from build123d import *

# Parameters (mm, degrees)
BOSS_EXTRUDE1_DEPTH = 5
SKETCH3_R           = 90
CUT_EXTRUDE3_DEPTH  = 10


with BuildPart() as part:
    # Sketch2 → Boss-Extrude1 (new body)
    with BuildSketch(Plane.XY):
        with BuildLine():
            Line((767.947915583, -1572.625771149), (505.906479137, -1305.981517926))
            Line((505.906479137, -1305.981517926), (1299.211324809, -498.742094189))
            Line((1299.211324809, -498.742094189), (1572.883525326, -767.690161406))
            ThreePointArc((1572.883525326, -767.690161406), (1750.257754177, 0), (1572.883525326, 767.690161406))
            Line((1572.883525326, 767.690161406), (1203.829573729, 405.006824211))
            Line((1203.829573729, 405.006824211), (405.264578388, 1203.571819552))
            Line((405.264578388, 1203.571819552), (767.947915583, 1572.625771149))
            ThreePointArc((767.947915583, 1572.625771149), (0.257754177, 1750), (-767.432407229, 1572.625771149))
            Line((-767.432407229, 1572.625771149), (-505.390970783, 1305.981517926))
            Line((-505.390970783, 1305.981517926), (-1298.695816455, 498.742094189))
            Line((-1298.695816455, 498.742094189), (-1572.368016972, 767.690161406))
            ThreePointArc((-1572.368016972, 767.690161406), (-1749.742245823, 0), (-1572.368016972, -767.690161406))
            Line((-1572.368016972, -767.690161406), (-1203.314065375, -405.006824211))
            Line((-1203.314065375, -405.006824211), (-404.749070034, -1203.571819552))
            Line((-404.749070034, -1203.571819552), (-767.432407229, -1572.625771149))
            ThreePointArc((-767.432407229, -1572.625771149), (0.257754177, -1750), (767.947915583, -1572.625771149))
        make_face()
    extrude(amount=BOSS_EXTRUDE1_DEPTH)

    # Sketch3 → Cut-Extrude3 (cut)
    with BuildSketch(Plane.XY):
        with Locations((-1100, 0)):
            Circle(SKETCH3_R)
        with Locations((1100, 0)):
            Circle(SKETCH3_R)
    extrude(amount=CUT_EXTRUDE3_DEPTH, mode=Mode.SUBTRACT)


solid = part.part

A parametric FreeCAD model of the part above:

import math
import FreeCAD as App
import Part
import Sketcher

V = App.Vector
Q = App.Units.Quantity

doc = App.newDocument("Part")
body = doc.addObject("PartDesign::Body", "Body")

# Sketch on XY plane
sketch1 = doc.addObject("Sketcher::SketchObject", "Sketch")
body.addObject(sketch1)
sketch1.AttachmentSupport = (doc.XY_Plane, [""])
sketch1.MapMode = "FlatFace"
sketch1.addGeometry(Part.LineSegment(V(767.947916, -1572.625771, 0), V(505.906479, -1305.981518, 0)), False)
sketch1.addGeometry(Part.LineSegment(V(505.906479, -1305.981518, 0), V(1299.211325, -498.742094, 0)), False)
sketch1.addGeometry(Part.LineSegment(V(1299.211325, -498.742094, 0), V(1572.883525, -767.690161, 0)), False)
sketch1.addGeometry(Part.ArcOfCircle(Part.Circle(V(0.257754, 0, 0), V(0, 0, 1), 1750), math.radians(-26.019696), math.radians(26.019696)), False)
sketch1.addGeometry(Part.LineSegment(V(1572.883525, 767.690161, 0), V(1203.829574, 405.006824, 0)), False)
sketch1.addGeometry(Part.LineSegment(V(1203.829574, 405.006824, 0), V(405.264578, 1203.57182, 0)), False)
sketch1.addGeometry(Part.LineSegment(V(405.264578, 1203.57182, 0), V(767.947916, 1572.625771, 0)), False)
sketch1.addGeometry(Part.ArcOfCircle(Part.Circle(V(0.257754, 0, 0), V(0, 0, 1), 1750), math.radians(63.980304), math.radians(116.019696)), False)
sketch1.addGeometry(Part.LineSegment(V(-767.432407, 1572.625771, 0), V(-505.390971, 1305.981518, 0)), False)
sketch1.addGeometry(Part.LineSegment(V(-505.390971, 1305.981518, 0), V(-1298.695816, 498.742094, 0)), False)
sketch1.addGeometry(Part.LineSegment(V(-1298.695816, 498.742094, 0), V(-1572.368017, 767.690161, 0)), False)
sketch1.addGeometry(Part.ArcOfCircle(Part.Circle(V(0.257754, 0, 0), V(0, 0, 1), 1750), math.radians(153.980304), math.radians(206.019696)), False)
sketch1.addGeometry(Part.LineSegment(V(-1572.368017, -767.690161, 0), V(-1203.314065, -405.006824, 0)), False)
sketch1.addGeometry(Part.LineSegment(V(-1203.314065, -405.006824, 0), V(-404.74907, -1203.57182, 0)), False)
sketch1.addGeometry(Part.LineSegment(V(-404.74907, -1203.57182, 0), V(-767.432407, -1572.625771, 0)), False)
sketch1.addGeometry(Part.ArcOfCircle(Part.Circle(V(0.257754, 0, 0), V(0, 0, 1), 1750), math.radians(-116.019696), math.radians(-63.980304)), False)
sketch1.addConstraint(Sketcher.Constraint("Coincident", 0, 2, 1, 1))
sketch1.addConstraint(Sketcher.Constraint("Coincident", 1, 2, 2, 1))
sketch1.addConstraint(Sketcher.Constraint("Coincident", 2, 2, 3, 1))
sketch1.addConstraint(Sketcher.Constraint("Coincident", 3, 2, 4, 1))
sketch1.addConstraint(Sketcher.Constraint("Coincident", 4, 2, 5, 1))
sketch1.addConstraint(Sketcher.Constraint("Coincident", 5, 2, 6, 1))
sketch1.addConstraint(Sketcher.Constraint("Coincident", 6, 2, 7, 1))
sketch1.addConstraint(Sketcher.Constraint("Coincident", 7, 2, 8, 1))
sketch1.addConstraint(Sketcher.Constraint("Coincident", 8, 2, 9, 1))
sketch1.addConstraint(Sketcher.Constraint("Coincident", 9, 2, 10, 1))
sketch1.addConstraint(Sketcher.Constraint("Coincident", 10, 2, 11, 1))
sketch1.addConstraint(Sketcher.Constraint("Coincident", 11, 2, 12, 1))
sketch1.addConstraint(Sketcher.Constraint("Coincident", 12, 2, 13, 1))
sketch1.addConstraint(Sketcher.Constraint("Coincident", 13, 2, 14, 1))
sketch1.addConstraint(Sketcher.Constraint("Coincident", 14, 2, 15, 1))
sketch1.addConstraint(Sketcher.Constraint("Coincident", 15, 2, 0, 1))
sketch1.addConstraint(Sketcher.Constraint("Coincident", 7, 3, 3, 3))
sketch1.addConstraint(Sketcher.Constraint("Coincident", 11, 3, 3, 3))
sketch1.addConstraint(Sketcher.Constraint("Coincident", 15, 3, 3, 3))
sketch1.addConstraint(Sketcher.Constraint("Equal", 3, 7))
sketch1.addConstraint(Sketcher.Constraint("Equal", 7, 11))
sketch1.addConstraint(Sketcher.Constraint("Equal", 11, 15))
sketch1.addConstraint(Sketcher.Constraint("PointOnObject", 3, 3, -1))
sketch1.addConstraint(Sketcher.Constraint("Perpendicular", 1, 2))
sketch1.addConstraint(Sketcher.Constraint("Perpendicular", 0, 4))
sketch1.addConstraint(Sketcher.Constraint("Perpendicular", 2, 6))
sketch1.addConstraint(Sketcher.Constraint("Perpendicular", 4, 8))
sketch1.addConstraint(Sketcher.Constraint("Parallel", 6, 9))
sketch1.addConstraint(Sketcher.Constraint("Perpendicular", 9, 10))
sketch1.addConstraint(Sketcher.Constraint("Perpendicular", 8, 12))
sketch1.addConstraint(Sketcher.Constraint("Parallel", 5, 13))
sketch1.addConstraint(Sketcher.Constraint("Perpendicular", 10, 14))
sketch1.addConstraint(Sketcher.Constraint("Equal", 4, 6))
sketch1.addConstraint(Sketcher.Constraint("Equal", 0, 8))
sketch1.addConstraint(Sketcher.Constraint("Equal", 1, 9))
sketch1.addConstraint(Sketcher.Constraint("Equal", 2, 10))
sketch1.addConstraint(Sketcher.Constraint("Equal", 6, 12))
sketch1.addConstraint(Sketcher.Constraint("Equal", 5, 13))
sketch1.addConstraint(Sketcher.Constraint("Equal", 12, 14))
sketch1.addConstraint(Sketcher.Constraint("Radius", 3, 1750.0))
sketch1.addConstraint(Sketcher.Constraint("Angle", 5, Q("135 deg")))
sketch1.addConstraint(Sketcher.Constraint("DistanceX", 1, 2, 2, 2, 273.672201))
sketch1.addConstraint(Sketcher.Constraint("DistanceY", 5, 2, 8, 2, 102.409698))
sketch1.addConstraint(Sketcher.Constraint("Distance", 2, 383.705012))
sketch1.addConstraint(Sketcher.Constraint("DistanceX", -1, 1, 0, 2, 505.906479))
sketch1.addConstraint(Sketcher.Constraint("DistanceY", 2, 2, -1, 1, 767.690161))
sketch1.addConstraint(Sketcher.Constraint("DistanceX", -1, 1, 5, 2, 405.264578))
sketch1.addConstraint(Sketcher.Constraint("DistanceY", -1, 1, 5, 2, 1203.57182))
sketch1.addConstraint(Sketcher.Constraint("DistanceX", 4, 2, 1, 2, 95.381751))
pad1 = doc.addObject("PartDesign::Pad", "Pad")
body.addObject(pad1)
pad1.Profile = sketch1
pad1.Length = 5

# Sketch on XY plane
sketch2 = doc.addObject("Sketcher::SketchObject", "Sketch001")
body.addObject(sketch2)
sketch2.AttachmentSupport = (doc.XY_Plane, [""])
sketch2.MapMode = "FlatFace"
sketch2.addGeometry(Part.Circle(V(-1100, 0, 0), V(0, 0, 1), 90), False)
sketch2.addGeometry(Part.Circle(V(1100, 0, 0), V(0, 0, 1), 90), False)
sketch2.addConstraint(Sketcher.Constraint("Equal", 0, 1))
sketch2.addConstraint(Sketcher.Constraint("Symmetric", 0, 3, 1, 3, -1, 1))
sketch2.addConstraint(Sketcher.Constraint("PointOnObject", 0, 3, -1))
sketch2.addConstraint(Sketcher.Constraint("Diameter", 0, 180.0))
sketch2.addConstraint(Sketcher.Constraint("DistanceX", 0, 3, -1, 1, 1100.0))
pocket1 = doc.addObject("PartDesign::Pocket", "Pocket")
body.addObject(pocket1)
pocket1.Profile = sketch2
pocket1.Length = 10
pocket1.Reversed = True

doc.recompute()
